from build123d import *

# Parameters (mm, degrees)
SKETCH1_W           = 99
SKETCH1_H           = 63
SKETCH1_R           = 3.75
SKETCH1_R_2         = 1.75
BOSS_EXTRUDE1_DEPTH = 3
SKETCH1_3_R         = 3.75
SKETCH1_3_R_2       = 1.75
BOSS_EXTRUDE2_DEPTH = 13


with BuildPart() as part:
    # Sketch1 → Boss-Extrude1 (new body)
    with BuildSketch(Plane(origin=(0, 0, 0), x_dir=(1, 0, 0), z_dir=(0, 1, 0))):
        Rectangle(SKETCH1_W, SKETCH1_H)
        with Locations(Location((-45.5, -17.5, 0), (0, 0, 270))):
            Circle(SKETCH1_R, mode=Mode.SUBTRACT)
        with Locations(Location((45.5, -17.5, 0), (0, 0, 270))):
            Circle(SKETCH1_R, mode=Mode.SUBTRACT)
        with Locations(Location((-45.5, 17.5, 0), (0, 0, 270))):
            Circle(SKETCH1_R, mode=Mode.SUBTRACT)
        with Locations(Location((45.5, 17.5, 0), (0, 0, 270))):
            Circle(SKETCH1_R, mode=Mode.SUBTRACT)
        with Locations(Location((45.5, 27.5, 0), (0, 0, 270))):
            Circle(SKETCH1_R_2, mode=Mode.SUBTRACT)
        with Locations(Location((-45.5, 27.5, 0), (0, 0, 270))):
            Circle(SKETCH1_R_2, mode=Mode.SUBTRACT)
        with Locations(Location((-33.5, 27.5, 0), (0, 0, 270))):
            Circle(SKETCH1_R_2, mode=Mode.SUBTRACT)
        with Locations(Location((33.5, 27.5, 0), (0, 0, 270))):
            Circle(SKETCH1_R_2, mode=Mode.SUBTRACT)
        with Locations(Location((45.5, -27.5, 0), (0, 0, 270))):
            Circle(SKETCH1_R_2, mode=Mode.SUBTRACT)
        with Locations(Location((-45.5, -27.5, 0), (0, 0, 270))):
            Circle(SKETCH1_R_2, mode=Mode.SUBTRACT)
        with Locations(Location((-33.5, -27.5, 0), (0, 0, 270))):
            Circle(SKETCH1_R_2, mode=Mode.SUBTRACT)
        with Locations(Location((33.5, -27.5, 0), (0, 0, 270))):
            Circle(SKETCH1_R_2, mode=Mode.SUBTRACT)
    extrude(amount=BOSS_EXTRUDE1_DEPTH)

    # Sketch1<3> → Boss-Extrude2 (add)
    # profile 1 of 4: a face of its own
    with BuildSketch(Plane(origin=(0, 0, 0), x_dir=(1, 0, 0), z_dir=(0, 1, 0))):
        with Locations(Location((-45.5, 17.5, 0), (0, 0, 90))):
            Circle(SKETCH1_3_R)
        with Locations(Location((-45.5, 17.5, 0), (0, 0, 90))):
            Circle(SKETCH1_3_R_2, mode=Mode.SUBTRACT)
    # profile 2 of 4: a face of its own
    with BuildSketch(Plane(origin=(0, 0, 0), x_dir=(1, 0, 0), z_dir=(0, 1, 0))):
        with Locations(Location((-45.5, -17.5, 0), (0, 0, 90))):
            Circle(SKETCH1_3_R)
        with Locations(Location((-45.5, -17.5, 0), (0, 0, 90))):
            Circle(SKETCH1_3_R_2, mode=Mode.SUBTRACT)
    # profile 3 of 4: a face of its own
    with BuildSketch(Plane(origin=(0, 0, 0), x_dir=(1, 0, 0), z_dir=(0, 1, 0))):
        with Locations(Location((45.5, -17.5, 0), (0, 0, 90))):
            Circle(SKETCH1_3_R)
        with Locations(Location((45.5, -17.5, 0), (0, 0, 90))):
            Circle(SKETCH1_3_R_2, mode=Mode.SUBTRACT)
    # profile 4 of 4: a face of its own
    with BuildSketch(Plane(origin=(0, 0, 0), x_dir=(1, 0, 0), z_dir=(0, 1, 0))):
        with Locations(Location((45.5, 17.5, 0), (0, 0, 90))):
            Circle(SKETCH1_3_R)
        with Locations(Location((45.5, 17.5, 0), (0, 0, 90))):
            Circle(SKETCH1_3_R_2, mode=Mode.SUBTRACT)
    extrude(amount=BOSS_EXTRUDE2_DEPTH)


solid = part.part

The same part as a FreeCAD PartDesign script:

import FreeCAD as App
import Part
import Sketcher
from FreeCAD import Vector
Q = App.Units.Quantity


def add_polygon(sketch, points):
    """Adds a closed chain of lines whose ends are joined by coincident constraints."""
    first, n = sketch.GeometryCount, len(points)
    for a, b in zip(points, points[1:] + points[:1]):
        sketch.addGeometry(Part.LineSegment(App.Vector(*a, 0), App.Vector(*b, 0)), False)
    for i in range(n):
        sketch.addConstraint(Sketcher.Constraint("Coincident", first + i, 2, first + (i + 1) % n, 1))

doc = App.newDocument("Part")
body = doc.addObject("PartDesign::Body", "Body")

# Sketch on XZ plane
sketch1 = doc.addObject("Sketcher::SketchObject", "Sketch")
body.addObject(sketch1)
sketch1.AttachmentSupport = (doc.XZ_Plane, [""])
sketch1.MapMode = "FlatFace"
add_polygon(sketch1, [(-49.5, -31.5), (-49.5, 31.5), (49.5, 31.5), (49.5, -31.5)])  # lines 0-3
sketch1.addGeometry(Part.Circle(Vector(-45.5, 27.5, 0), Vector(0, 0, 1), 1.8), False)  # 4
sketch1.addGeometry(Part.Circle(Vector(-33.5, 27.5, 0), Vector(0, 0, 1), 1.8), False)  # 5
sketch1.addGeometry(Part.Circle(Vector(-45.5, 17.5, 0), Vector(0, 0, 1), 3.8), False)  # 6
sketch1.addGeometry(Part.Circle(Vector(33.5, 27.5, 0), Vector(0, 0, 1), 1.8), False)  # 7
sketch1.addGeometry(Part.Circle(Vector(45.5, 27.5, 0), Vector(0, 0, 1), 1.8), False)  # 8
sketch1.addGeometry(Part.Circle(Vector(45.5, 17.5, 0), Vector(0, 0, 1), 3.8), False)  # 9
sketch1.addGeometry(Part.Circle(Vector(-45.5, -17.5, 0), Vector(0, 0, 1), 3.8), False)  # 10
sketch1.addGeometry(Part.Circle(Vector(-45.5, -27.5, 0), Vector(0, 0, 1), 1.8), False)  # 11
sketch1.addGeometry(Part.Circle(Vector(-33.5, -27.5, 0), Vector(0, 0, 1), 1.8), False)  # 12
sketch1.addGeometry(Part.Circle(Vector(45.5, -17.5, 0), Vector(0, 0, 1), 3.8), False)  # 13
sketch1.addGeometry(Part.Circle(Vector(33.5, -27.5, 0), Vector(0, 0, 1), 1.8), False)  # 14
sketch1.addGeometry(Part.Circle(Vector(45.5, -27.5, 0), Vector(0, 0, 1), 1.8), False)  # 15
sketch1.addConstraint([
    Sketcher.Constraint("Vertical", 0),
    Sketcher.Constraint("Horizontal", 1),
    Sketcher.Constraint("Vertical", 2),
    Sketcher.Constraint("Horizontal", 3),
    Sketcher.Constraint("Equal", 4, 5),
    Sketcher.Constraint("Equal", 5, 7),
    Sketcher.Constraint("Equal", 7, 8),
    Sketcher.Constraint("Equal", 6, 9),
    Sketcher.Constraint("Equal", 9, 10),
    Sketcher.Constraint("Equal", 8, 11),
    Sketcher.Constraint("Equal", 11, 12),
    Sketcher.Constraint("Equal", 10, 13),
    Sketcher.Constraint("Equal", 12, 14),
    Sketcher.Constraint("Equal", 14, 15),
    Sketcher.Constraint("Symmetric", 9, 3, 10, 3, -1, 1),
    Sketcher.Constraint("Symmetric", 8, 3, 11, 3, -1, 1),
    Sketcher.Constraint("Symmetric", 7, 3, 12, 3, -1, 1),
    Sketcher.Constraint("Symmetric", 6, 3, 13, 3, -1, 1),
    Sketcher.Constraint("Symmetric", 5, 3, 14, 3, -1, 1),
    Sketcher.Constraint("Symmetric", 4, 3, 15, 3, -1, 1),
    Sketcher.Constraint("Symmetric", 0, 2, 2, 2, -1, 1),
    Sketcher.Constraint("Symmetric", 5, 3, 7, 3, -2),
    Sketcher.Constraint("Symmetric", 4, 3, 8, 3, -2),
    Sketcher.Constraint("Symmetric", 6, 3, 9, 3, -2),
    Sketcher.Constraint("Horizontal", 4, 3, 5, 3),
    Sketcher.Constraint("Vertical", 4, 3, 6, 3),
    Sketcher.Constraint("Diameter", 4, Q("3.5 mm")),
    Sketcher.Constraint("Diameter", 6, Q("7.5 mm")),
    Sketcher.Constraint("DistanceX", 1, 1, 1, 2, Q("99 mm")),
    Sketcher.Constraint("DistanceY", 0, 1, 0, 2, Q("63 mm")),
    Sketcher.Constraint("DistanceX", 4, 3, 5, 3, Q("12 mm")),
    Sketcher.Constraint("DistanceY", 6, 3, 4, 3, Q("10 mm")),
    Sketcher.Constraint("DistanceX", 5, 3, 7, 3, Q("67 mm")),
    Sketcher.Constraint("DistanceY", 10, 3, 6, 3, Q("35 mm")),
])
pad1 = doc.addObject("PartDesign::Pad", "Pad")
body.addObject(pad1)
pad1.Profile = sketch1
pad1.Length = 3
pad1.Reversed = True

# Sketch on XZ plane
sketch2 = doc.addObject("Sketcher::SketchObject", "Sketch001")
body.addObject(sketch2)
sketch2.AttachmentSupport = (doc.XZ_Plane, [""])
sketch2.MapMode = "FlatFace"
sketch2.addGeometry([
    Part.Circle(Vector(-45.5, -17.5, 0), Vector(0, 0, 1), 3.8),  # 0
    Part.Circle(Vector(-45.5, -17.5, 0), Vector(0, 0, 1), 1.8),  # 1
    Part.Circle(Vector(-45.5, 17.5, 0), Vector(0, 0, 1), 3.8),  # 2
    Part.Circle(Vector(-45.5, 17.5, 0), Vector(0, 0, 1), 1.8),  # 3
    Part.Circle(Vector(45.5, 17.5, 0), Vector(0, 0, 1), 3.8),  # 4
    Part.Circle(Vector(45.5, 17.5, 0), Vector(0, 0, 1), 1.8),  # 5
    Part.Circle(Vector(45.5, -17.5, 0), Vector(0, 0, 1), 3.8),  # 6
    Part.Circle(Vector(45.5, -17.5, 0), Vector(0, 0, 1), 1.8),  # 7
], False)
sketch2.addConstraint([
    Sketcher.Constraint("Coincident", 1, 3, 0, 3),
    Sketcher.Constraint("Coincident", 3, 3, 2, 3),
    Sketcher.Constraint("Coincident", 5, 3, 4, 3),
    Sketcher.Constraint("Coincident", 7, 3, 6, 3),
    Sketcher.Constraint("Equal", 0, 2),
    Sketcher.Constraint("Equal", 1, 3),
    Sketcher.Constraint("Equal", 2, 4),
    Sketcher.Constraint("Equal", 3, 5),
    Sketcher.Constraint("Equal", 4, 6),
    Sketcher.Constraint("Equal", 5, 7),
    Sketcher.Constraint("Symmetric", 0, 3, 4, 3, -1, 1),
    Sketcher.Constraint("Symmetric", 2, 3, 6, 3, -1, 1),
    Sketcher.Constraint("Symmetric", 2, 3, 4, 3, -2),
    Sketcher.Constraint("Diameter", 0, Q("7.5 mm")),
    Sketcher.Constraint("Diameter", 1, Q("3.5 mm")),
    Sketcher.Constraint("DistanceY", 0, 3, 2, 3, Q("35 mm")),
    Sketcher.Constraint("DistanceX", 2, 3, 4, 3, Q("91 mm")),
])
pad2 = doc.addObject("PartDesign::Pad", "Pad001")
body.addObject(pad2)
pad2.Profile = sketch2
pad2.Length = 13
pad2.Reversed = True

doc.recompute()
